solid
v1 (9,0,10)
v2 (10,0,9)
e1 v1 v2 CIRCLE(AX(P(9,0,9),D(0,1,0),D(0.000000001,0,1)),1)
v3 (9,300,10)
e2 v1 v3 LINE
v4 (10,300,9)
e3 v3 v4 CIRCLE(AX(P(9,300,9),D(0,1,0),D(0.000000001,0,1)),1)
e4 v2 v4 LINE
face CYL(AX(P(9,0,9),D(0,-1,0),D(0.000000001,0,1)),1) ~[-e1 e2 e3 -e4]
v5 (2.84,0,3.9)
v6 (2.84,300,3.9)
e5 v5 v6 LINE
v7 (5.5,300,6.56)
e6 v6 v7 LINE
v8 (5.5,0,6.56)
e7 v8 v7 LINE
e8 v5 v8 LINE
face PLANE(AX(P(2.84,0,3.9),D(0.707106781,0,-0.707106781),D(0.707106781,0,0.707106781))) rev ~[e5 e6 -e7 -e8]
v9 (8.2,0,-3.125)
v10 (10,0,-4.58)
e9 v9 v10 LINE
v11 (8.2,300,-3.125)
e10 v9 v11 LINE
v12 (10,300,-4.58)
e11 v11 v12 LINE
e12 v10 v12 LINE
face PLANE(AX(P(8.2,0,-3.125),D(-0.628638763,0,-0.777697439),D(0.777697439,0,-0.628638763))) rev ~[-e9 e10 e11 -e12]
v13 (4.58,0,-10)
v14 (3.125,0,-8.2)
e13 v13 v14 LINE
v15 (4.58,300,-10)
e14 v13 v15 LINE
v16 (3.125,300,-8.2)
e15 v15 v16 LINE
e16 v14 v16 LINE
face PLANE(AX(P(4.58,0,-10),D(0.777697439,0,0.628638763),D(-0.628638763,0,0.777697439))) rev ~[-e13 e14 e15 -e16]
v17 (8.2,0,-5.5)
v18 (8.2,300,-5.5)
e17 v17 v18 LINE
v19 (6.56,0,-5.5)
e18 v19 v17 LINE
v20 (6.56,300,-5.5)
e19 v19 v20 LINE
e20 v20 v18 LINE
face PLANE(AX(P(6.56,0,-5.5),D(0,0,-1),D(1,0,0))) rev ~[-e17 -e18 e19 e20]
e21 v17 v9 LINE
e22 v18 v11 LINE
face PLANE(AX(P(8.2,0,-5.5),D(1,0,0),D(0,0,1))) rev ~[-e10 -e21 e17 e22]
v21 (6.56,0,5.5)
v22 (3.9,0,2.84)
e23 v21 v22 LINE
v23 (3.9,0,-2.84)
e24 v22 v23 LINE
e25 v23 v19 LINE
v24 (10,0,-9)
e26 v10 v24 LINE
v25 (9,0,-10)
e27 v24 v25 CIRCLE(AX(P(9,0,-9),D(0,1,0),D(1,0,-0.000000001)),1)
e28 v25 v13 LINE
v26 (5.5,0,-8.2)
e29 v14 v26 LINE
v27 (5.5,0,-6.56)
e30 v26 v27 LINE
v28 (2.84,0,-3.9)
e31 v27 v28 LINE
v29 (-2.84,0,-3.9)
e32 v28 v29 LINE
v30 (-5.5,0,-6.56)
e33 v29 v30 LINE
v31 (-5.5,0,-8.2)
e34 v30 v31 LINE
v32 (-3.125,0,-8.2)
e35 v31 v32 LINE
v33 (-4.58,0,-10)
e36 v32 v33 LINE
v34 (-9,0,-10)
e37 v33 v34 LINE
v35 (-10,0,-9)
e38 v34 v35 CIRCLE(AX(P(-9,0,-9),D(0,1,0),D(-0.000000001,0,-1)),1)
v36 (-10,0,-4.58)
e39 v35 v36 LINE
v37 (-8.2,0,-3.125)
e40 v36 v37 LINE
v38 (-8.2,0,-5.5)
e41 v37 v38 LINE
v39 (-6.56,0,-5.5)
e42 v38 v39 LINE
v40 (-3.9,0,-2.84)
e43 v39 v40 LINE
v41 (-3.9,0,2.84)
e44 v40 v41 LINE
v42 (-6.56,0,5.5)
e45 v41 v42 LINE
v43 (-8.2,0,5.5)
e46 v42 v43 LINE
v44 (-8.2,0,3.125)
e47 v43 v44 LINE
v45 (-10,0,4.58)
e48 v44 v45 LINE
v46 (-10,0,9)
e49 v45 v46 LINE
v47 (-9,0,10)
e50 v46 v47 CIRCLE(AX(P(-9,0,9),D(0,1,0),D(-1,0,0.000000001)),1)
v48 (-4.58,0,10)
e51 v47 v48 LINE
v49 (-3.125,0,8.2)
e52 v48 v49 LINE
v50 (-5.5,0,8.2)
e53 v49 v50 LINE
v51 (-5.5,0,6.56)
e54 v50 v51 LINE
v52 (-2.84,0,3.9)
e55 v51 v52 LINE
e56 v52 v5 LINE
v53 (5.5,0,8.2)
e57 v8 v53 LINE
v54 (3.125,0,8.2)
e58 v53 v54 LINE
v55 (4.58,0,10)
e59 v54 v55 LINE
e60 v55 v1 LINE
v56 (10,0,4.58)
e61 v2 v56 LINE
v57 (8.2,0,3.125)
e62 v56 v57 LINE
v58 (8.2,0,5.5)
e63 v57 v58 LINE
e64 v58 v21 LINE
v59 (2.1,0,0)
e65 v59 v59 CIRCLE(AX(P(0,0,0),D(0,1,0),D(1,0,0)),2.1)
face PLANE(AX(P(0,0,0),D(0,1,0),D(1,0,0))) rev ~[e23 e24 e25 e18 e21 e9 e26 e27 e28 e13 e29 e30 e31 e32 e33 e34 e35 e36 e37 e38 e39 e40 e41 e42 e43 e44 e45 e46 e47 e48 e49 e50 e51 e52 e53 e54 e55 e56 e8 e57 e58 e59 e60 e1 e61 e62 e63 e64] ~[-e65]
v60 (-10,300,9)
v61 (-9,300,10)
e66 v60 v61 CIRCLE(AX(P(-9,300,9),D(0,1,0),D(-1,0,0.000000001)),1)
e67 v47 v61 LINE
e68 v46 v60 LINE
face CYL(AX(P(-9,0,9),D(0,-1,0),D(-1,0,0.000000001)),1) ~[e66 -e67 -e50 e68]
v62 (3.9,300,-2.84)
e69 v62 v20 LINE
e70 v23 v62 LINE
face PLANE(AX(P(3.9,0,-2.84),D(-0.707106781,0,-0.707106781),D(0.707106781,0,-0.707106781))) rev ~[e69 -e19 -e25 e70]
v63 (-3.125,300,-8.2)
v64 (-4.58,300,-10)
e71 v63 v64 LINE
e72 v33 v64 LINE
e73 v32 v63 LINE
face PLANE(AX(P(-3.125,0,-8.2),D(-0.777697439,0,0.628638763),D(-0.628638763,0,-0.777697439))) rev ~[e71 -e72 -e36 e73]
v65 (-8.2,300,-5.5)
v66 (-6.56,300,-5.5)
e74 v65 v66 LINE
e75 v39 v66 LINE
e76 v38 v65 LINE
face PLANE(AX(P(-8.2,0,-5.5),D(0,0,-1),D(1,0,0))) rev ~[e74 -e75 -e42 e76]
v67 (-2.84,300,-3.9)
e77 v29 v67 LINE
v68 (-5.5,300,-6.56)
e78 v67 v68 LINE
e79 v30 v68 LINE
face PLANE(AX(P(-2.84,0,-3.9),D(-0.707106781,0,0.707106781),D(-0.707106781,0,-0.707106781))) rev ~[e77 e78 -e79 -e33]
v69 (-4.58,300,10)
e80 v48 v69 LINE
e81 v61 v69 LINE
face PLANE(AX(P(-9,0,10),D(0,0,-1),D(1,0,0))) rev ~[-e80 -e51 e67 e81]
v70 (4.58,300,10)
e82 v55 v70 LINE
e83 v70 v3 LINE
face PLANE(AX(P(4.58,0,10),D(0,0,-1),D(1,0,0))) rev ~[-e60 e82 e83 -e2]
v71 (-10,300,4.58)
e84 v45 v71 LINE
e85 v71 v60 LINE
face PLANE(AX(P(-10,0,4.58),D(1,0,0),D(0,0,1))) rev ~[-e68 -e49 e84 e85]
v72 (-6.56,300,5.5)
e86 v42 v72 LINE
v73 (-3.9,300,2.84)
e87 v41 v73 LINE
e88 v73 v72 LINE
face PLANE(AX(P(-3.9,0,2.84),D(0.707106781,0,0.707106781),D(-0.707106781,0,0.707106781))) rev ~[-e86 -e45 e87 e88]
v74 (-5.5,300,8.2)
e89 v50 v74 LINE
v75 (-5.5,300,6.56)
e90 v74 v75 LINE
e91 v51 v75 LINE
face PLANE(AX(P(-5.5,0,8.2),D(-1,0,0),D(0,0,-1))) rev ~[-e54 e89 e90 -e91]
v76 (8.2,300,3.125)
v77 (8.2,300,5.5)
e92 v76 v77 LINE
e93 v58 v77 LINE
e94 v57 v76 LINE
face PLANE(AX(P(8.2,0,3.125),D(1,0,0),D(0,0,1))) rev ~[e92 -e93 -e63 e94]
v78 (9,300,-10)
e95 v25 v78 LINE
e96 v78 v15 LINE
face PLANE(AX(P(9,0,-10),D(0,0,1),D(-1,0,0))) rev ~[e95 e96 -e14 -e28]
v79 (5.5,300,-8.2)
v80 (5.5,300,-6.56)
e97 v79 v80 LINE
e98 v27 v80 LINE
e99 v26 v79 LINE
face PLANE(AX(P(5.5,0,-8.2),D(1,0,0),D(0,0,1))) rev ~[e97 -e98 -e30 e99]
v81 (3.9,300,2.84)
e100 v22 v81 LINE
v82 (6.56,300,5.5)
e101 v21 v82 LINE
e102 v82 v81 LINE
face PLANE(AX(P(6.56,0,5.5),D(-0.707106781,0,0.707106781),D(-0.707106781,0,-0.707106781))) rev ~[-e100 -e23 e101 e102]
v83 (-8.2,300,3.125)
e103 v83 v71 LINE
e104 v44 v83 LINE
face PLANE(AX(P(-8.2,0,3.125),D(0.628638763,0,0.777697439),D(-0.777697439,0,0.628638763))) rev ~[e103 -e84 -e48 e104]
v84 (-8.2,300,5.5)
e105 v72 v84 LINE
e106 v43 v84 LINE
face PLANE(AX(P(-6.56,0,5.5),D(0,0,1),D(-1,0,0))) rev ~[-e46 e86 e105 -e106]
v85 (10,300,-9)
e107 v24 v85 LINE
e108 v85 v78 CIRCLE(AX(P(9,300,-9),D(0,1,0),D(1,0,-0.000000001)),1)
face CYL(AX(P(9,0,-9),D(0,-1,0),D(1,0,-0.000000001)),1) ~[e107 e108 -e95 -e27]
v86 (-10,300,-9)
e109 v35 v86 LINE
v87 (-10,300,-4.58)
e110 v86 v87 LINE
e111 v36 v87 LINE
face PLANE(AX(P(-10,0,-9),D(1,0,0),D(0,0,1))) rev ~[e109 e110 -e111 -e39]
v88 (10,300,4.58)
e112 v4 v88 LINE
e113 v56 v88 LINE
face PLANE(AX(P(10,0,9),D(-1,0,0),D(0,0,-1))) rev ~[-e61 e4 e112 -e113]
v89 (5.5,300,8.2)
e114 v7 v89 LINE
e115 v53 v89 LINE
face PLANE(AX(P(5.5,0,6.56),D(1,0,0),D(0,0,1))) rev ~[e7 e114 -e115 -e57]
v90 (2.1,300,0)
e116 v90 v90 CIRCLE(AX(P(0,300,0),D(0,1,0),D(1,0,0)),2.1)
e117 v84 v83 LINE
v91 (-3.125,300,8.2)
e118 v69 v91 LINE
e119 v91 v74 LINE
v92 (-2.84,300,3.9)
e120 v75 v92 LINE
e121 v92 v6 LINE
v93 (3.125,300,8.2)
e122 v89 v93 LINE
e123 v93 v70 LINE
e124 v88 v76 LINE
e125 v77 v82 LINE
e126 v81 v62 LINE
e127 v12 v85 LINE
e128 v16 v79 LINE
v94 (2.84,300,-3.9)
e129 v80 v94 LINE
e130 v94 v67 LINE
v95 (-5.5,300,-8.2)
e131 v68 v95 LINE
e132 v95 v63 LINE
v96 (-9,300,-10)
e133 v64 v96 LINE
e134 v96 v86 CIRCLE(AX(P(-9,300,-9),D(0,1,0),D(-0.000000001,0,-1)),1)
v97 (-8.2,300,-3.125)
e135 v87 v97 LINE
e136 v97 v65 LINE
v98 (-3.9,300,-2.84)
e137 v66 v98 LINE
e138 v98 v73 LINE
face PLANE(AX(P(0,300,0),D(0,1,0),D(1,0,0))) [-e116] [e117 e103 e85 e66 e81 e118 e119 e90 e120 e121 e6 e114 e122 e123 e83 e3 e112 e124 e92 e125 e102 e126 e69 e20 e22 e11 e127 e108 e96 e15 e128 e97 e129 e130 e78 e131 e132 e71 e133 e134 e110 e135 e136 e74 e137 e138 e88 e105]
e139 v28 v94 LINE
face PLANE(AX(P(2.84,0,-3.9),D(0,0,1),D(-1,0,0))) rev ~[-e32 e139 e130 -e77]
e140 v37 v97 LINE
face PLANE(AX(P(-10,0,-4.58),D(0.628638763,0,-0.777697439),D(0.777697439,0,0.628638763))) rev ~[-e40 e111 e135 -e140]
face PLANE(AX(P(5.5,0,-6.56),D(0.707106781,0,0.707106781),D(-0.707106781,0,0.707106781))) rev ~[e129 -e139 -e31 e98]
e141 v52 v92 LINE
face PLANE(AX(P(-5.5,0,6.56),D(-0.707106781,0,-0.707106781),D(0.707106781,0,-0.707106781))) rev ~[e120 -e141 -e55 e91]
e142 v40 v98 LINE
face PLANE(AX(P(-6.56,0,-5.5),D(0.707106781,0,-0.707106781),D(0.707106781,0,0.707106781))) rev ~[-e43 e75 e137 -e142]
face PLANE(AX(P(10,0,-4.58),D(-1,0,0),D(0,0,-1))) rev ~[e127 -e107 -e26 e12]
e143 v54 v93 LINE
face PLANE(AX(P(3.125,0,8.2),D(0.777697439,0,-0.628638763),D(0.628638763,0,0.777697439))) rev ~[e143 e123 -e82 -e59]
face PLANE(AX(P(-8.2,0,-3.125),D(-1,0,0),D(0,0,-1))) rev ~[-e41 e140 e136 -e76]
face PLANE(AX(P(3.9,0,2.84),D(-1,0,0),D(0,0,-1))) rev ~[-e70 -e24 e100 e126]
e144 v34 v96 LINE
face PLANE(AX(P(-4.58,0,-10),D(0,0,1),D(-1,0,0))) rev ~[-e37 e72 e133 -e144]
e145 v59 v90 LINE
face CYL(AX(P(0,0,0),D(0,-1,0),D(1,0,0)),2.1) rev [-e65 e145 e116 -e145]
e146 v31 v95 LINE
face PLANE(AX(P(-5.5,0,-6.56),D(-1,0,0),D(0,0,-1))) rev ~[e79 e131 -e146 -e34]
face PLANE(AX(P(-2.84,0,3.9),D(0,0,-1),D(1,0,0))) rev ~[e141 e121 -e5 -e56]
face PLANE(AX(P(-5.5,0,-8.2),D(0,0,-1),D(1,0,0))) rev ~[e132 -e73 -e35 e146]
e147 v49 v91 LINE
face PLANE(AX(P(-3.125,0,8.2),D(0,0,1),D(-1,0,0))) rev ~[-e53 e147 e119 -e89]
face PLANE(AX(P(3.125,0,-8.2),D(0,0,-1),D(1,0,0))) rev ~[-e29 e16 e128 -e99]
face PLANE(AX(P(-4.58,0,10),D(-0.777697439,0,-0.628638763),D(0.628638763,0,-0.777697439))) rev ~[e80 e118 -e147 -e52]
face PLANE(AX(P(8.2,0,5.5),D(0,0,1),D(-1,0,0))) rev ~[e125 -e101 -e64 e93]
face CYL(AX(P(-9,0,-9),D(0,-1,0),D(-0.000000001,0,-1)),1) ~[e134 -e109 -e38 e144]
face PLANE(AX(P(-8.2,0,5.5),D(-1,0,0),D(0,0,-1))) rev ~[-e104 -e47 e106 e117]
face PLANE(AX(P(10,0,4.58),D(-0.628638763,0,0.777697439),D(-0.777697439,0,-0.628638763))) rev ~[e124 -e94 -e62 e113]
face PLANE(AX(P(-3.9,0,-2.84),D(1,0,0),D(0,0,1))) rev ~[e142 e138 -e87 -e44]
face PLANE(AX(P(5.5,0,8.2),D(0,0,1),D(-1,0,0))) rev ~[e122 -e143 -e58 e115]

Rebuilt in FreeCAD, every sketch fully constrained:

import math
import FreeCAD as App
import Part
import Sketcher
from FreeCAD import Vector

doc = App.newDocument("Part")
params = doc.addObject("Spreadsheet::Sheet", "Params")
for row, (alias, value) in enumerate([
    ("sketch1_radius", "1 mm"),
    ("sketch1_diameter", "4.2 mm"),
    ("sketch1_width", "4.42 mm"),
    ("sketch1_width2", "1.64 mm"),
    ("sketch1_width3", "5.68 mm"),
    ("pad1_length", "300 mm"),
], start=1):
    params.set(f"A{row}", alias)
    params.set(f"B{row}", "=" + value)
    params.setAlias(f"B{row}", alias)

body = doc.addObject("PartDesign::Body", "Body")

sketch1 = body.newObject("Sketcher::SketchObject", "Sketch")
sketch1.AttachmentSupport = (doc.getObject("XZ_Plane"), [""])
sketch1.MapMode = "FlatFace"
sketch1.addGeometry([
    Part.LineSegment(Vector(-5.5, -8.2, 0), Vector(-3.1, -8.2, 0)),
    Part.LineSegment(Vector(-3.1, -8.2, 0), Vector(-4.6, -10, 0)),
    Part.LineSegment(Vector(-4.6, -10, 0), Vector(-9, -10, 0)),
    Part.ArcOfCircle(Part.Circle(Vector(-9, -9, 0), Vector(0, 0, 1), 1), math.radians(-180), math.radians(-90)),
    Part.LineSegment(Vector(-10, -9, 0), Vector(-10, -4.6, 0)),
    Part.LineSegment(Vector(-10, -4.6, 0), Vector(-8.2, -3.1, 0)),
    Part.LineSegment(Vector(-8.2, -3.1, 0), Vector(-8.2, -5.5, 0)),
    Part.LineSegment(Vector(-8.2, -5.5, 0), Vector(-6.6, -5.5, 0)),
    Part.LineSegment(Vector(-6.6, -5.5, 0), Vector(-3.9, -2.8, 0)),
    Part.LineSegment(Vector(-3.9, -2.8, 0), Vector(-3.9, 2.8, 0)),
    Part.LineSegment(Vector(-3.9, 2.8, 0), Vector(-6.6, 5.5, 0)),
    Part.LineSegment(Vector(-6.6, 5.5, 0), Vector(-8.2, 5.5, 0)),
    Part.LineSegment(Vector(-8.2, 5.5, 0), Vector(-8.2, 3.1, 0)),
    Part.LineSegment(Vector(-8.2, 3.1, 0), Vector(-10, 4.6, 0)),
    Part.LineSegment(Vector(-10, 4.6, 0), Vector(-10, 9, 0)),
    Part.ArcOfCircle(Part.Circle(Vector(-9, 9, 0), Vector(0, 0, 1), 1), math.radians(90), math.radians(180)),
    Part.LineSegment(Vector(-9, 10, 0), Vector(-4.6, 10, 0)),
    Part.LineSegment(Vector(-4.6, 10, 0), Vector(-3.1, 8.2, 0)),
    Part.LineSegment(Vector(-3.1, 8.2, 0), Vector(-5.5, 8.2, 0)),
    Part.LineSegment(Vector(-5.5, 8.2, 0), Vector(-5.5, 6.6, 0)),
    Part.LineSegment(Vector(-5.5, 6.6, 0), Vector(-2.8, 3.9, 0)),
    Part.LineSegment(Vector(-2.8, 3.9, 0), Vector(2.8, 3.9, 0)),
    Part.LineSegment(Vector(2.8, 3.9, 0), Vector(5.5, 6.6, 0)),
    Part.LineSegment(Vector(5.5, 6.6, 0), Vector(5.5, 8.2, 0)),
    Part.LineSegment(Vector(5.5, 8.2, 0), Vector(3.1, 8.2, 0)),
    Part.LineSegment(Vector(3.1, 8.2, 0), Vector(4.6, 10, 0)),
    Part.LineSegment(Vector(4.6, 10, 0), Vector(9, 10, 0)),
    Part.ArcOfCircle(Part.Circle(Vector(9, 9, 0), Vector(0, 0, 1), 1), math.radians(0), math.radians(90)),
    Part.LineSegment(Vector(10, 9, 0), Vector(10, 4.6, 0)),
    Part.LineSegment(Vector(10, 4.6, 0), Vector(8.2, 3.1, 0)),
    Part.LineSegment(Vector(8.2, 3.1, 0), Vector(8.2, 5.5, 0)),
    Part.LineSegment(Vector(8.2, 5.5, 0), Vector(6.6, 5.5, 0)),
    Part.LineSegment(Vector(6.6, 5.5, 0), Vector(3.9, 2.8, 0)),
    Part.LineSegment(Vector(3.9, 2.8, 0), Vector(3.9, -2.8, 0)),
    Part.LineSegment(Vector(3.9, -2.8, 0), Vector(6.6, -5.5, 0)),
    Part.LineSegment(Vector(6.6, -5.5, 0), Vector(8.2, -5.5, 0)),
    Part.LineSegment(Vector(8.2, -5.5, 0), Vector(8.2, -3.1, 0)),
    Part.LineSegment(Vector(8.2, -3.1, 0), Vector(10, -4.6, 0)),
    Part.LineSegment(Vector(10, -4.6, 0), Vector(10, -9, 0)),
    Part.ArcOfCircle(Part.Circle(Vector(9, -9, 0), Vector(0, 0, 1), 1), math.radians(-90), math.radians(0)),
    Part.LineSegment(Vector(9, -10, 0), Vector(4.6, -10, 0)),
    Part.LineSegment(Vector(4.6, -10, 0), Vector(3.1, -8.2, 0)),
    Part.LineSegment(Vector(3.1, -8.2, 0), Vector(5.5, -8.2, 0)),
    Part.LineSegment(Vector(5.5, -8.2, 0), Vector(5.5, -6.6, 0)),
    Part.LineSegment(Vector(5.5, -6.6, 0), Vector(2.8, -3.9, 0)),
    Part.LineSegment(Vector(2.8, -3.9, 0), Vector(-2.8, -3.9, 0)),
    Part.LineSegment(Vector(-2.8, -3.9, 0), Vector(-5.5, -6.6, 0)),
    Part.LineSegment(Vector(-5.5, -6.6, 0), Vector(-5.5, -8.2, 0)),
    Part.Circle(Vector(0, 0, 0), Vector(0, 0, 1), 2.1),
], False)
sketch1.addConstraint([
    Sketcher.Constraint("Coincident", 0, 2, 1, 1),
    Sketcher.Constraint("Coincident", 1, 2, 2, 1),
    Sketcher.Constraint("Tangent", 2, 2, 3, 2),
    Sketcher.Constraint("Tangent", 3, 1, 4, 1),
    Sketcher.Constraint("Coincident", 4, 2, 5, 1),
    Sketcher.Constraint("Coincident", 5, 2, 6, 1),
    Sketcher.Constraint("Coincident", 6, 2, 7, 1),
    Sketcher.Constraint("Coincident", 7, 2, 8, 1),
    Sketcher.Constraint("Coincident", 8, 2, 9, 1),
    Sketcher.Constraint("Coincident", 9, 2, 10, 1),
    Sketcher.Constraint("Coincident", 10, 2, 11, 1),
    Sketcher.Constraint("Coincident", 11, 2, 12, 1),
    Sketcher.Constraint("Coincident", 12, 2, 13, 1),
    Sketcher.Constraint("Coincident", 13, 2, 14, 1),
    Sketcher.Constraint("Tangent", 14, 2, 15, 2),
    Sketcher.Constraint("Tangent", 15, 1, 16, 1),
    Sketcher.Constraint("Coincident", 16, 2, 17, 1),
    Sketcher.Constraint("Coincident", 17, 2, 18, 1),
    Sketcher.Constraint("Coincident", 18, 2, 19, 1),
    Sketcher.Constraint("Coincident", 19, 2, 20, 1),
    Sketcher.Constraint("Coincident", 20, 2, 21, 1),
    Sketcher.Constraint("Coincident", 21, 2, 22, 1),
    Sketcher.Constraint("Coincident", 22, 2, 23, 1),
    Sketcher.Constraint("Coincident", 23, 2, 24, 1),
    Sketcher.Constraint("Coincident", 24, 2, 25, 1),
    Sketcher.Constraint("Coincident", 25, 2, 26, 1),
    Sketcher.Constraint("Tangent", 26, 2, 27, 2),
    Sketcher.Constraint("Tangent", 27, 1, 28, 1),
    Sketcher.Constraint("Coincident", 28, 2, 29, 1),
    Sketcher.Constraint("Coincident", 29, 2, 30, 1),
    Sketcher.Constraint("Coincident", 30, 2, 31, 1),
    Sketcher.Constraint("Coincident", 31, 2, 32, 1),
    Sketcher.Constraint("Coincident", 32, 2, 33, 1),
    Sketcher.Constraint("Coincident", 33, 2, 34, 1),
    Sketcher.Constraint("Coincident", 34, 2, 35, 1),
    Sketcher.Constraint("Coincident", 35, 2, 36, 1),
    Sketcher.Constraint("Coincident", 36, 2, 37, 1),
    Sketcher.Constraint("Coincident", 37, 2, 38, 1),
    Sketcher.Constraint("Tangent", 38, 2, 39, 2),
    Sketcher.Constraint("Tangent", 39, 1, 40, 1),
    Sketcher.Constraint("Coincident", 40, 2, 41, 1),
    Sketcher.Constraint("Coincident", 41, 2, 42, 1),
    Sketcher.Constraint("Coincident", 42, 2, 43, 1),
    Sketcher.Constraint("Coincident", 43, 2, 44, 1),
    Sketcher.Constraint("Coincident", 44, 2, 45, 1),
    Sketcher.Constraint("Coincident", 45, 2, 46, 1),
    Sketcher.Constraint("Coincident", 46, 2, 47, 1),
    Sketcher.Constraint("Coincident", 47, 2, 0, 1),
    Sketcher.Constraint("Horizontal", 0),
    Sketcher.Constraint("Horizontal", 2),
    Sketcher.Constraint("Vertical", 4),
    Sketcher.Constraint("Vertical", 6),
    Sketcher.Constraint("Horizontal", 7),
    Sketcher.Constraint("Vertical", 9),
    Sketcher.Constraint("Horizontal", 11),
    Sketcher.Constraint("Vertical", 12),
    Sketcher.Constraint("Vertical", 14),
    Sketcher.Constraint("Horizontal", 16),
    Sketcher.Constraint("Horizontal", 18),
    Sketcher.Constraint("Vertical", 19),
    Sketcher.Constraint("Horizontal", 21),
    Sketcher.Constraint("Vertical", 23),
    Sketcher.Constraint("Horizontal", 24),
    Sketcher.Constraint("Horizontal", 26),
    Sketcher.Constraint("Vertical", 28),
    Sketcher.Constraint("Vertical", 30),
    Sketcher.Constraint("Horizontal", 31),
    Sketcher.Constraint("Vertical", 33),
    Sketcher.Constraint("Horizontal", 35),
    Sketcher.Constraint("Vertical", 36),
    Sketcher.Constraint("Vertical", 38),
    Sketcher.Constraint("Horizontal", 40),
    Sketcher.Constraint("Horizontal", 42),
    Sketcher.Constraint("Vertical", 43),
    Sketcher.Constraint("Horizontal", 45),
    Sketcher.Constraint("Vertical", 47),
    Sketcher.Constraint("Coincident", 48, 3, -1, 1),
    Sketcher.Constraint("Equal", 3, 15),
    Sketcher.Constraint("Equal", 15, 27),
    Sketcher.Constraint("Equal", 27, 39),
    Sketcher.Constraint("Symmetric", 3, 3, 27, 3, -1, 1),
    Sketcher.Constraint("Symmetric", 15, 3, 39, 3, -1, 1),
    Sketcher.Constraint("Symmetric", 0, 2, 24, 2, -1, 1),
    Sketcher.Constraint("Symmetric", 5, 2, 29, 2, -1, 1),
    Sketcher.Constraint("Symmetric", 7, 2, 31, 2, -1, 1),
    Sketcher.Constraint("Symmetric", 8, 2, 32, 2, -1, 1),
    Sketcher.Constraint("Symmetric", 10, 2, 34, 2, -1, 1),
    Sketcher.Constraint("Symmetric", 12, 2, 36, 2, -1, 1),
    Sketcher.Constraint("Symmetric", 17, 2, 41, 2, -1, 1),
    Sketcher.Constraint("Symmetric", 19, 2, 43, 2, -1, 1),
    Sketcher.Constraint("Symmetric", 20, 2, 44, 2, -1, 1),
    Sketcher.Constraint("Symmetric", 22, 2, 46, 2, -1, 1),
    Sketcher.Constraint("Symmetric", 15, 3, 27, 3, -2),
    Sketcher.Constraint("Symmetric", 19, 2, 22, 2, -2),
    Sketcher.Constraint("Symmetric", 17, 2, 24, 2, -2),
    Sketcher.Constraint("Symmetric", 12, 2, 29, 2, -2),
    Sketcher.Constraint("Symmetric", 10, 2, 31, 2, -2),
    Sketcher.Constraint("Perpendicular", 8, 10),
    Sketcher.Constraint("Perpendicular", 1, 13),
    Sketcher.Constraint("Perpendicular", 5, 17),
    Sketcher.Constraint("Parallel", 10, 20),
    Sketcher.Constraint("Perpendicular", 20, 22),
    Sketcher.Constraint("Perpendicular", 13, 25),
    Sketcher.Constraint("Perpendicular", 17, 29),
    Sketcher.Constraint("Perpendicular", 32, 34),
    Sketcher.Constraint("Perpendicular", 25, 37),
    Sketcher.Constraint("Perpendicular", 29, 41),
    Sketcher.Constraint("Perpendicular", 44, 46),
    Sketcher.Constraint("Horizontal", 13, 2, 28, 2),
    Sketcher.Constraint("Horizontal", 9, 2, 32, 2),
    Sketcher.Constraint("Equal", 40, 4),
    Sketcher.Constraint("Equal", 42, 6),
    Sketcher.Constraint("Equal", 45, 9),
    Sketcher.Constraint("Equal", 35, 19),
    Sketcher.Constraint("Equal", 1, 5),
    Sketcher.Constraint("Equal", 10, 20),
    Sketcher.Constraint("Radius", 3, 1.0),
    Sketcher.Constraint("Diameter", 48, 4.2),
    Sketcher.Constraint("DistanceX", 3, 3, -1, 1, 9.0),
    Sketcher.Constraint("DistanceX", 2, 2, 2, 1, 4.42),
    Sketcher.Constraint("DistanceX", 7, 1, 7, 2, 1.64),
    Sketcher.Constraint("DistanceX", 21, 1, 21, 2, 5.68),
    Sketcher.Constraint("DistanceY", 0, 2, -1, 1, 8.2),
    Sketcher.Constraint("DistanceY", 6, 2, -1, 1, 5.5),
    Sketcher.Constraint("DistanceX", 0, 1, 0, 2, 2.375),
])
sketch1.setExpression("Constraints[116]", "Params.sketch1_radius")
sketch1.setExpression("Constraints[117]", "Params.sketch1_diameter")
sketch1.setExpression("Constraints[119]", "Params.sketch1_width")
sketch1.setExpression("Constraints[120]", "Params.sketch1_width2")
sketch1.setExpression("Constraints[121]", "Params.sketch1_width3")
pad1 = body.newObject("PartDesign::Pad", "Pad")
pad1.Profile = sketch1
pad1.setExpression("Length", "Params.pad1_length")
pad1.Reversed = True

doc.recompute()
